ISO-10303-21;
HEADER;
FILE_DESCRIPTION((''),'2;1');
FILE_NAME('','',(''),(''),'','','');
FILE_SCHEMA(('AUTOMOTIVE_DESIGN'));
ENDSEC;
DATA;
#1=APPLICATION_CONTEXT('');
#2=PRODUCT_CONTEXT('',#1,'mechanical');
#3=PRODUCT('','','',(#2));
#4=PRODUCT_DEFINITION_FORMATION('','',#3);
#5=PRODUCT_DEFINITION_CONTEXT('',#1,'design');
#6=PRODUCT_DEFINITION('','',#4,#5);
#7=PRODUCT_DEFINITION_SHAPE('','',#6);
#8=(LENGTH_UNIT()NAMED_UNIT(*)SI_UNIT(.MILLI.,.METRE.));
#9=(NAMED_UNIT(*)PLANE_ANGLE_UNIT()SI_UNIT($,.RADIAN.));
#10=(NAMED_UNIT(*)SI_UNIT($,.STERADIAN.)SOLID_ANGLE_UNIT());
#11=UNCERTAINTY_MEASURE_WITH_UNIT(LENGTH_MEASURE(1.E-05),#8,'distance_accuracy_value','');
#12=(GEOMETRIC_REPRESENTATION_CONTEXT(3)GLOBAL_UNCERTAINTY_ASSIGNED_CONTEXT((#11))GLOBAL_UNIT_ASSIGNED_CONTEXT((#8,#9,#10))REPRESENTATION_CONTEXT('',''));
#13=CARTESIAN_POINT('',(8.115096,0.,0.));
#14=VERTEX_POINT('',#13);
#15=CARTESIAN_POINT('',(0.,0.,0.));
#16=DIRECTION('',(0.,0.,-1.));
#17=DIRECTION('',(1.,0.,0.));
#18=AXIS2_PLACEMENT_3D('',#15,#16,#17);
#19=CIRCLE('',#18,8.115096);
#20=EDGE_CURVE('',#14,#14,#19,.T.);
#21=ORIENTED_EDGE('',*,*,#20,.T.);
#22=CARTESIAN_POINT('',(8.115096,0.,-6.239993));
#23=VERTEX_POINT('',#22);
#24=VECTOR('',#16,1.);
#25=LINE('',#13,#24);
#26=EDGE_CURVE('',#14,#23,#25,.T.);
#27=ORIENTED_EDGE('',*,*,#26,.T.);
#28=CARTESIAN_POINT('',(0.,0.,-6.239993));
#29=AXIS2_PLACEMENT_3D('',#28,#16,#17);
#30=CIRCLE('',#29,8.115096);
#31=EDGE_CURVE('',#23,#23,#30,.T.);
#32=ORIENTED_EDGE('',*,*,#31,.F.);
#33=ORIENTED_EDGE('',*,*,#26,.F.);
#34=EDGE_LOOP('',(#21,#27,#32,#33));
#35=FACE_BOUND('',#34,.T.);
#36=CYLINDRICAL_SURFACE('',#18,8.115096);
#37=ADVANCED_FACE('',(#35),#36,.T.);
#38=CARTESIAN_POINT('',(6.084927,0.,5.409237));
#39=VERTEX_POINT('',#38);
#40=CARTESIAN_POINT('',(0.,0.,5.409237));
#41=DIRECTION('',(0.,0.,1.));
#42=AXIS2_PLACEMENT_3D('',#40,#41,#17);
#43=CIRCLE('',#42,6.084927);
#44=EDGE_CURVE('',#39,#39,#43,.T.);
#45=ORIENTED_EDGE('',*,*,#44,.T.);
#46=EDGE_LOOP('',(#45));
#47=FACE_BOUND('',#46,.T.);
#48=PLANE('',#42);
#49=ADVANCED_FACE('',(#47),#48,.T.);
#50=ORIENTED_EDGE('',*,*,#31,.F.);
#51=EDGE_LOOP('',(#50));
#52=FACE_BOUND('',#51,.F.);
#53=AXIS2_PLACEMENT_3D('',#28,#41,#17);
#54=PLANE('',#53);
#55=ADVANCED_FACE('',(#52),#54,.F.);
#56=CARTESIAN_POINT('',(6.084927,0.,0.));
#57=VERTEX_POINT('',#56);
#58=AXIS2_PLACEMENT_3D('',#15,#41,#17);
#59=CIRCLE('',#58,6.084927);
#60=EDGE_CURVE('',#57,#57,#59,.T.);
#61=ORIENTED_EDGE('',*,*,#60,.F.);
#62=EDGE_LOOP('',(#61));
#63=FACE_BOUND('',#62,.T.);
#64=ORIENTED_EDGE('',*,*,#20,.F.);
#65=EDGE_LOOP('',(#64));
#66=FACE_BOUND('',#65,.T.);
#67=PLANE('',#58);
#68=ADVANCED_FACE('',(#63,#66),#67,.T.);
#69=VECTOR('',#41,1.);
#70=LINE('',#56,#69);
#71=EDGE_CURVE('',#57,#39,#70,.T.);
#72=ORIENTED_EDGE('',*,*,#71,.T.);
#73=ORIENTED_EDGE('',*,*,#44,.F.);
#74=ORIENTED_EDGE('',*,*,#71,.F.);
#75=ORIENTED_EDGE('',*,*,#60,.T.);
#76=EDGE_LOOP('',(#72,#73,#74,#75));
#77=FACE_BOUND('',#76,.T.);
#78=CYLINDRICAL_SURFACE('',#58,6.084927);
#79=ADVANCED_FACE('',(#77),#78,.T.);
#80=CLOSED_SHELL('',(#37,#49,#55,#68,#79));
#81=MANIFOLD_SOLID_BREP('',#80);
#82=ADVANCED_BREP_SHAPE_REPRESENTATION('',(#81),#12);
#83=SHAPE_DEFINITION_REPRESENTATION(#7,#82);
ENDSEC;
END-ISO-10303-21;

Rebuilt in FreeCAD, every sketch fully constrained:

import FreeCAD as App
import Part
import Sketcher

V = App.Vector

doc = App.newDocument("Part")
body = doc.addObject("PartDesign::Body", "Body")

sketch1 = doc.addObject("Sketcher::SketchObject", "Sketch")
body.addObject(sketch1)
sketch1.AttachmentSupport = (doc.XY_Plane, [""])
sketch1.MapMode = "FlatFace"
sketch1.addGeometry(Part.Circle(V(0, 0, 0), V(0, 0, 1), 8), False)
sketch1.addConstraint(Sketcher.Constraint("Coincident", 0, 3, -1, 1))
sketch1.addConstraint(Sketcher.Constraint("Diameter", 0, 16.230192))

sketch2 = doc.addObject("Sketcher::SketchObject", "Sketch001")
body.addObject(sketch2)
sketch2.AttachmentSupport = (doc.XZ_Plane, [""])
sketch2.MapMode = "FlatFace"
sketch2.addGeometry(Part.LineSegment(V(0, 0, 0), V(0, -6, 0)), False)
sketch2.addConstraint(Sketcher.Constraint("Vertical", 0))
sketch2.addConstraint(Sketcher.Constraint("Coincident", 0, 1, -1, 1))
sketch2.addConstraint(Sketcher.Constraint("DistanceY", 0, 2, 0, 1, 6.239993))
doc.recompute()

additivepipe = doc.addObject("PartDesign::AdditivePipe", "AdditivePipe")
body.addObject(additivepipe)
additivepipe.Profile = sketch1
additivepipe.Spine = (sketch2, ["Edge1"])

sketch3 = doc.addObject("Sketcher::SketchObject", "Sketch002")
body.addObject(sketch3)
sketch3.AttachmentSupport = (doc.XY_Plane, [""])
sketch3.MapMode = "FlatFace"
sketch3.addGeometry(Part.Circle(V(0, 0, 0), V(0, 0, 1), 6), False)
sketch3.addConstraint(Sketcher.Constraint("Coincident", 0, 3, -1, 1))
sketch3.addConstraint(Sketcher.Constraint("Diameter", 0, 12.169854))

sketch4 = doc.addObject("Sketcher::SketchObject", "Sketch003")
body.addObject(sketch4)
sketch4.AttachmentSupport = (doc.XZ_Plane, [""])
sketch4.MapMode = "FlatFace"
sketch4.addGeometry(Part.LineSegment(V(0, 0, 0), V(0, 5, 0)), False)
sketch4.addConstraint(Sketcher.Constraint("Vertical", 0))
sketch4.addConstraint(Sketcher.Constraint("Coincident", 0, 1, -1, 1))
sketch4.addConstraint(Sketcher.Constraint("DistanceY", 0, 1, 0, 2, 5.409237))
doc.recompute()

additivepipe2 = doc.addObject("PartDesign::AdditivePipe", "AdditivePipe001")
body.addObject(additivepipe2)
additivepipe2.Profile = sketch3
additivepipe2.Spine = (sketch4, ["Edge1"])

doc.recompute()
